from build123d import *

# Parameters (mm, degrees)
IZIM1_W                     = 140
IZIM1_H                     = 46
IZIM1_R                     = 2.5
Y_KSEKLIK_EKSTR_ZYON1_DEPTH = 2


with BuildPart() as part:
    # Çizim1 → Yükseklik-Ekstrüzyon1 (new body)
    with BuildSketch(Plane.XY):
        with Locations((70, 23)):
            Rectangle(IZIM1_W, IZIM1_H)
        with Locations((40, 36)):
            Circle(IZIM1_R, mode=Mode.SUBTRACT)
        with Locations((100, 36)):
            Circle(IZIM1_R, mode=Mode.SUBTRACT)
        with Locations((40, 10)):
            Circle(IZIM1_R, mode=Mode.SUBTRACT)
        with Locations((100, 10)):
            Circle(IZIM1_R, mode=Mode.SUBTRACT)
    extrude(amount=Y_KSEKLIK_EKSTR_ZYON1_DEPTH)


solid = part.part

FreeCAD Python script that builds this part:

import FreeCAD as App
import Part
import Sketcher


def add_polygon(sketch, points):
    """Adds a closed chain of lines whose ends are joined by coincident constraints."""
    first, n = sketch.GeometryCount, len(points)
    for a, b in zip(points, points[1:] + points[:1]):
        sketch.addGeometry(Part.LineSegment(App.Vector(*a, 0), App.Vector(*b, 0)), False)
    for i in range(n):
        sketch.addConstraint(Sketcher.Constraint("Coincident", first + i, 2, first + (i + 1) % n, 1))

doc = App.newDocument("Part")
body = doc.addObject("PartDesign::Body", "Body")

sketch1 = body.newObject("Sketcher::SketchObject", "Sketch")
sketch1.AttachmentSupport = (doc.getObject("XY_Plane"), [""])
sketch1.MapMode = "FlatFace"
add_polygon(sketch1, [(0, 46), (0, 0), (140, 0), (140, 46)])
sketch1.addGeometry(Part.Circle(App.Vector(40, 10, 0), App.Vector(0, 0, 1), 2.5), False)
sketch1.addGeometry(Part.Circle(App.Vector(100, 10, 0), App.Vector(0, 0, 1), 2.5), False)
sketch1.addGeometry(Part.Circle(App.Vector(40, 36, 0), App.Vector(0, 0, 1), 2.5), False)
sketch1.addGeometry(Part.Circle(App.Vector(100, 36, 0), App.Vector(0, 0, 1), 2.5), False)
sketch1.addConstraint([
    Sketcher.Constraint("Vertical", 0),
    Sketcher.Constraint("Horizontal", 1),
    Sketcher.Constraint("Vertical", 2),
    Sketcher.Constraint("Horizontal", 3),
    Sketcher.Constraint("Coincident", 0, 2, -1, 1),
    Sketcher.Constraint("Equal", 4, 5),
    Sketcher.Constraint("Equal", 5, 6),
    Sketcher.Constraint("Equal", 6, 7),
    Sketcher.Constraint("Horizontal", 4, 3, 5, 3),
    Sketcher.Constraint("Horizontal", 6, 3, 7, 3),
    Sketcher.Constraint("Vertical", 4, 3, 6, 3),
    Sketcher.Constraint("Vertical", 5, 3, 7, 3),
    Sketcher.Constraint("Diameter", 4, 5.0),
    Sketcher.Constraint("DistanceX", 1, 1, 1, 2, 140.0),
    Sketcher.Constraint("DistanceY", 0, 2, 0, 1, 46.0),
    Sketcher.Constraint("DistanceX", -1, 1, 4, 3, 40.0),
    Sketcher.Constraint("DistanceY", -1, 1, 4, 3, 10.0),
    Sketcher.Constraint("DistanceX", -1, 1, 5, 3, 100.0),
    Sketcher.Constraint("DistanceY", -1, 1, 6, 3, 36.0),
])
pad1 = body.newObject("PartDesign::Pad", "Pad")
pad1.Profile = sketch1
pad1.Length = 2

doc.recompute()
